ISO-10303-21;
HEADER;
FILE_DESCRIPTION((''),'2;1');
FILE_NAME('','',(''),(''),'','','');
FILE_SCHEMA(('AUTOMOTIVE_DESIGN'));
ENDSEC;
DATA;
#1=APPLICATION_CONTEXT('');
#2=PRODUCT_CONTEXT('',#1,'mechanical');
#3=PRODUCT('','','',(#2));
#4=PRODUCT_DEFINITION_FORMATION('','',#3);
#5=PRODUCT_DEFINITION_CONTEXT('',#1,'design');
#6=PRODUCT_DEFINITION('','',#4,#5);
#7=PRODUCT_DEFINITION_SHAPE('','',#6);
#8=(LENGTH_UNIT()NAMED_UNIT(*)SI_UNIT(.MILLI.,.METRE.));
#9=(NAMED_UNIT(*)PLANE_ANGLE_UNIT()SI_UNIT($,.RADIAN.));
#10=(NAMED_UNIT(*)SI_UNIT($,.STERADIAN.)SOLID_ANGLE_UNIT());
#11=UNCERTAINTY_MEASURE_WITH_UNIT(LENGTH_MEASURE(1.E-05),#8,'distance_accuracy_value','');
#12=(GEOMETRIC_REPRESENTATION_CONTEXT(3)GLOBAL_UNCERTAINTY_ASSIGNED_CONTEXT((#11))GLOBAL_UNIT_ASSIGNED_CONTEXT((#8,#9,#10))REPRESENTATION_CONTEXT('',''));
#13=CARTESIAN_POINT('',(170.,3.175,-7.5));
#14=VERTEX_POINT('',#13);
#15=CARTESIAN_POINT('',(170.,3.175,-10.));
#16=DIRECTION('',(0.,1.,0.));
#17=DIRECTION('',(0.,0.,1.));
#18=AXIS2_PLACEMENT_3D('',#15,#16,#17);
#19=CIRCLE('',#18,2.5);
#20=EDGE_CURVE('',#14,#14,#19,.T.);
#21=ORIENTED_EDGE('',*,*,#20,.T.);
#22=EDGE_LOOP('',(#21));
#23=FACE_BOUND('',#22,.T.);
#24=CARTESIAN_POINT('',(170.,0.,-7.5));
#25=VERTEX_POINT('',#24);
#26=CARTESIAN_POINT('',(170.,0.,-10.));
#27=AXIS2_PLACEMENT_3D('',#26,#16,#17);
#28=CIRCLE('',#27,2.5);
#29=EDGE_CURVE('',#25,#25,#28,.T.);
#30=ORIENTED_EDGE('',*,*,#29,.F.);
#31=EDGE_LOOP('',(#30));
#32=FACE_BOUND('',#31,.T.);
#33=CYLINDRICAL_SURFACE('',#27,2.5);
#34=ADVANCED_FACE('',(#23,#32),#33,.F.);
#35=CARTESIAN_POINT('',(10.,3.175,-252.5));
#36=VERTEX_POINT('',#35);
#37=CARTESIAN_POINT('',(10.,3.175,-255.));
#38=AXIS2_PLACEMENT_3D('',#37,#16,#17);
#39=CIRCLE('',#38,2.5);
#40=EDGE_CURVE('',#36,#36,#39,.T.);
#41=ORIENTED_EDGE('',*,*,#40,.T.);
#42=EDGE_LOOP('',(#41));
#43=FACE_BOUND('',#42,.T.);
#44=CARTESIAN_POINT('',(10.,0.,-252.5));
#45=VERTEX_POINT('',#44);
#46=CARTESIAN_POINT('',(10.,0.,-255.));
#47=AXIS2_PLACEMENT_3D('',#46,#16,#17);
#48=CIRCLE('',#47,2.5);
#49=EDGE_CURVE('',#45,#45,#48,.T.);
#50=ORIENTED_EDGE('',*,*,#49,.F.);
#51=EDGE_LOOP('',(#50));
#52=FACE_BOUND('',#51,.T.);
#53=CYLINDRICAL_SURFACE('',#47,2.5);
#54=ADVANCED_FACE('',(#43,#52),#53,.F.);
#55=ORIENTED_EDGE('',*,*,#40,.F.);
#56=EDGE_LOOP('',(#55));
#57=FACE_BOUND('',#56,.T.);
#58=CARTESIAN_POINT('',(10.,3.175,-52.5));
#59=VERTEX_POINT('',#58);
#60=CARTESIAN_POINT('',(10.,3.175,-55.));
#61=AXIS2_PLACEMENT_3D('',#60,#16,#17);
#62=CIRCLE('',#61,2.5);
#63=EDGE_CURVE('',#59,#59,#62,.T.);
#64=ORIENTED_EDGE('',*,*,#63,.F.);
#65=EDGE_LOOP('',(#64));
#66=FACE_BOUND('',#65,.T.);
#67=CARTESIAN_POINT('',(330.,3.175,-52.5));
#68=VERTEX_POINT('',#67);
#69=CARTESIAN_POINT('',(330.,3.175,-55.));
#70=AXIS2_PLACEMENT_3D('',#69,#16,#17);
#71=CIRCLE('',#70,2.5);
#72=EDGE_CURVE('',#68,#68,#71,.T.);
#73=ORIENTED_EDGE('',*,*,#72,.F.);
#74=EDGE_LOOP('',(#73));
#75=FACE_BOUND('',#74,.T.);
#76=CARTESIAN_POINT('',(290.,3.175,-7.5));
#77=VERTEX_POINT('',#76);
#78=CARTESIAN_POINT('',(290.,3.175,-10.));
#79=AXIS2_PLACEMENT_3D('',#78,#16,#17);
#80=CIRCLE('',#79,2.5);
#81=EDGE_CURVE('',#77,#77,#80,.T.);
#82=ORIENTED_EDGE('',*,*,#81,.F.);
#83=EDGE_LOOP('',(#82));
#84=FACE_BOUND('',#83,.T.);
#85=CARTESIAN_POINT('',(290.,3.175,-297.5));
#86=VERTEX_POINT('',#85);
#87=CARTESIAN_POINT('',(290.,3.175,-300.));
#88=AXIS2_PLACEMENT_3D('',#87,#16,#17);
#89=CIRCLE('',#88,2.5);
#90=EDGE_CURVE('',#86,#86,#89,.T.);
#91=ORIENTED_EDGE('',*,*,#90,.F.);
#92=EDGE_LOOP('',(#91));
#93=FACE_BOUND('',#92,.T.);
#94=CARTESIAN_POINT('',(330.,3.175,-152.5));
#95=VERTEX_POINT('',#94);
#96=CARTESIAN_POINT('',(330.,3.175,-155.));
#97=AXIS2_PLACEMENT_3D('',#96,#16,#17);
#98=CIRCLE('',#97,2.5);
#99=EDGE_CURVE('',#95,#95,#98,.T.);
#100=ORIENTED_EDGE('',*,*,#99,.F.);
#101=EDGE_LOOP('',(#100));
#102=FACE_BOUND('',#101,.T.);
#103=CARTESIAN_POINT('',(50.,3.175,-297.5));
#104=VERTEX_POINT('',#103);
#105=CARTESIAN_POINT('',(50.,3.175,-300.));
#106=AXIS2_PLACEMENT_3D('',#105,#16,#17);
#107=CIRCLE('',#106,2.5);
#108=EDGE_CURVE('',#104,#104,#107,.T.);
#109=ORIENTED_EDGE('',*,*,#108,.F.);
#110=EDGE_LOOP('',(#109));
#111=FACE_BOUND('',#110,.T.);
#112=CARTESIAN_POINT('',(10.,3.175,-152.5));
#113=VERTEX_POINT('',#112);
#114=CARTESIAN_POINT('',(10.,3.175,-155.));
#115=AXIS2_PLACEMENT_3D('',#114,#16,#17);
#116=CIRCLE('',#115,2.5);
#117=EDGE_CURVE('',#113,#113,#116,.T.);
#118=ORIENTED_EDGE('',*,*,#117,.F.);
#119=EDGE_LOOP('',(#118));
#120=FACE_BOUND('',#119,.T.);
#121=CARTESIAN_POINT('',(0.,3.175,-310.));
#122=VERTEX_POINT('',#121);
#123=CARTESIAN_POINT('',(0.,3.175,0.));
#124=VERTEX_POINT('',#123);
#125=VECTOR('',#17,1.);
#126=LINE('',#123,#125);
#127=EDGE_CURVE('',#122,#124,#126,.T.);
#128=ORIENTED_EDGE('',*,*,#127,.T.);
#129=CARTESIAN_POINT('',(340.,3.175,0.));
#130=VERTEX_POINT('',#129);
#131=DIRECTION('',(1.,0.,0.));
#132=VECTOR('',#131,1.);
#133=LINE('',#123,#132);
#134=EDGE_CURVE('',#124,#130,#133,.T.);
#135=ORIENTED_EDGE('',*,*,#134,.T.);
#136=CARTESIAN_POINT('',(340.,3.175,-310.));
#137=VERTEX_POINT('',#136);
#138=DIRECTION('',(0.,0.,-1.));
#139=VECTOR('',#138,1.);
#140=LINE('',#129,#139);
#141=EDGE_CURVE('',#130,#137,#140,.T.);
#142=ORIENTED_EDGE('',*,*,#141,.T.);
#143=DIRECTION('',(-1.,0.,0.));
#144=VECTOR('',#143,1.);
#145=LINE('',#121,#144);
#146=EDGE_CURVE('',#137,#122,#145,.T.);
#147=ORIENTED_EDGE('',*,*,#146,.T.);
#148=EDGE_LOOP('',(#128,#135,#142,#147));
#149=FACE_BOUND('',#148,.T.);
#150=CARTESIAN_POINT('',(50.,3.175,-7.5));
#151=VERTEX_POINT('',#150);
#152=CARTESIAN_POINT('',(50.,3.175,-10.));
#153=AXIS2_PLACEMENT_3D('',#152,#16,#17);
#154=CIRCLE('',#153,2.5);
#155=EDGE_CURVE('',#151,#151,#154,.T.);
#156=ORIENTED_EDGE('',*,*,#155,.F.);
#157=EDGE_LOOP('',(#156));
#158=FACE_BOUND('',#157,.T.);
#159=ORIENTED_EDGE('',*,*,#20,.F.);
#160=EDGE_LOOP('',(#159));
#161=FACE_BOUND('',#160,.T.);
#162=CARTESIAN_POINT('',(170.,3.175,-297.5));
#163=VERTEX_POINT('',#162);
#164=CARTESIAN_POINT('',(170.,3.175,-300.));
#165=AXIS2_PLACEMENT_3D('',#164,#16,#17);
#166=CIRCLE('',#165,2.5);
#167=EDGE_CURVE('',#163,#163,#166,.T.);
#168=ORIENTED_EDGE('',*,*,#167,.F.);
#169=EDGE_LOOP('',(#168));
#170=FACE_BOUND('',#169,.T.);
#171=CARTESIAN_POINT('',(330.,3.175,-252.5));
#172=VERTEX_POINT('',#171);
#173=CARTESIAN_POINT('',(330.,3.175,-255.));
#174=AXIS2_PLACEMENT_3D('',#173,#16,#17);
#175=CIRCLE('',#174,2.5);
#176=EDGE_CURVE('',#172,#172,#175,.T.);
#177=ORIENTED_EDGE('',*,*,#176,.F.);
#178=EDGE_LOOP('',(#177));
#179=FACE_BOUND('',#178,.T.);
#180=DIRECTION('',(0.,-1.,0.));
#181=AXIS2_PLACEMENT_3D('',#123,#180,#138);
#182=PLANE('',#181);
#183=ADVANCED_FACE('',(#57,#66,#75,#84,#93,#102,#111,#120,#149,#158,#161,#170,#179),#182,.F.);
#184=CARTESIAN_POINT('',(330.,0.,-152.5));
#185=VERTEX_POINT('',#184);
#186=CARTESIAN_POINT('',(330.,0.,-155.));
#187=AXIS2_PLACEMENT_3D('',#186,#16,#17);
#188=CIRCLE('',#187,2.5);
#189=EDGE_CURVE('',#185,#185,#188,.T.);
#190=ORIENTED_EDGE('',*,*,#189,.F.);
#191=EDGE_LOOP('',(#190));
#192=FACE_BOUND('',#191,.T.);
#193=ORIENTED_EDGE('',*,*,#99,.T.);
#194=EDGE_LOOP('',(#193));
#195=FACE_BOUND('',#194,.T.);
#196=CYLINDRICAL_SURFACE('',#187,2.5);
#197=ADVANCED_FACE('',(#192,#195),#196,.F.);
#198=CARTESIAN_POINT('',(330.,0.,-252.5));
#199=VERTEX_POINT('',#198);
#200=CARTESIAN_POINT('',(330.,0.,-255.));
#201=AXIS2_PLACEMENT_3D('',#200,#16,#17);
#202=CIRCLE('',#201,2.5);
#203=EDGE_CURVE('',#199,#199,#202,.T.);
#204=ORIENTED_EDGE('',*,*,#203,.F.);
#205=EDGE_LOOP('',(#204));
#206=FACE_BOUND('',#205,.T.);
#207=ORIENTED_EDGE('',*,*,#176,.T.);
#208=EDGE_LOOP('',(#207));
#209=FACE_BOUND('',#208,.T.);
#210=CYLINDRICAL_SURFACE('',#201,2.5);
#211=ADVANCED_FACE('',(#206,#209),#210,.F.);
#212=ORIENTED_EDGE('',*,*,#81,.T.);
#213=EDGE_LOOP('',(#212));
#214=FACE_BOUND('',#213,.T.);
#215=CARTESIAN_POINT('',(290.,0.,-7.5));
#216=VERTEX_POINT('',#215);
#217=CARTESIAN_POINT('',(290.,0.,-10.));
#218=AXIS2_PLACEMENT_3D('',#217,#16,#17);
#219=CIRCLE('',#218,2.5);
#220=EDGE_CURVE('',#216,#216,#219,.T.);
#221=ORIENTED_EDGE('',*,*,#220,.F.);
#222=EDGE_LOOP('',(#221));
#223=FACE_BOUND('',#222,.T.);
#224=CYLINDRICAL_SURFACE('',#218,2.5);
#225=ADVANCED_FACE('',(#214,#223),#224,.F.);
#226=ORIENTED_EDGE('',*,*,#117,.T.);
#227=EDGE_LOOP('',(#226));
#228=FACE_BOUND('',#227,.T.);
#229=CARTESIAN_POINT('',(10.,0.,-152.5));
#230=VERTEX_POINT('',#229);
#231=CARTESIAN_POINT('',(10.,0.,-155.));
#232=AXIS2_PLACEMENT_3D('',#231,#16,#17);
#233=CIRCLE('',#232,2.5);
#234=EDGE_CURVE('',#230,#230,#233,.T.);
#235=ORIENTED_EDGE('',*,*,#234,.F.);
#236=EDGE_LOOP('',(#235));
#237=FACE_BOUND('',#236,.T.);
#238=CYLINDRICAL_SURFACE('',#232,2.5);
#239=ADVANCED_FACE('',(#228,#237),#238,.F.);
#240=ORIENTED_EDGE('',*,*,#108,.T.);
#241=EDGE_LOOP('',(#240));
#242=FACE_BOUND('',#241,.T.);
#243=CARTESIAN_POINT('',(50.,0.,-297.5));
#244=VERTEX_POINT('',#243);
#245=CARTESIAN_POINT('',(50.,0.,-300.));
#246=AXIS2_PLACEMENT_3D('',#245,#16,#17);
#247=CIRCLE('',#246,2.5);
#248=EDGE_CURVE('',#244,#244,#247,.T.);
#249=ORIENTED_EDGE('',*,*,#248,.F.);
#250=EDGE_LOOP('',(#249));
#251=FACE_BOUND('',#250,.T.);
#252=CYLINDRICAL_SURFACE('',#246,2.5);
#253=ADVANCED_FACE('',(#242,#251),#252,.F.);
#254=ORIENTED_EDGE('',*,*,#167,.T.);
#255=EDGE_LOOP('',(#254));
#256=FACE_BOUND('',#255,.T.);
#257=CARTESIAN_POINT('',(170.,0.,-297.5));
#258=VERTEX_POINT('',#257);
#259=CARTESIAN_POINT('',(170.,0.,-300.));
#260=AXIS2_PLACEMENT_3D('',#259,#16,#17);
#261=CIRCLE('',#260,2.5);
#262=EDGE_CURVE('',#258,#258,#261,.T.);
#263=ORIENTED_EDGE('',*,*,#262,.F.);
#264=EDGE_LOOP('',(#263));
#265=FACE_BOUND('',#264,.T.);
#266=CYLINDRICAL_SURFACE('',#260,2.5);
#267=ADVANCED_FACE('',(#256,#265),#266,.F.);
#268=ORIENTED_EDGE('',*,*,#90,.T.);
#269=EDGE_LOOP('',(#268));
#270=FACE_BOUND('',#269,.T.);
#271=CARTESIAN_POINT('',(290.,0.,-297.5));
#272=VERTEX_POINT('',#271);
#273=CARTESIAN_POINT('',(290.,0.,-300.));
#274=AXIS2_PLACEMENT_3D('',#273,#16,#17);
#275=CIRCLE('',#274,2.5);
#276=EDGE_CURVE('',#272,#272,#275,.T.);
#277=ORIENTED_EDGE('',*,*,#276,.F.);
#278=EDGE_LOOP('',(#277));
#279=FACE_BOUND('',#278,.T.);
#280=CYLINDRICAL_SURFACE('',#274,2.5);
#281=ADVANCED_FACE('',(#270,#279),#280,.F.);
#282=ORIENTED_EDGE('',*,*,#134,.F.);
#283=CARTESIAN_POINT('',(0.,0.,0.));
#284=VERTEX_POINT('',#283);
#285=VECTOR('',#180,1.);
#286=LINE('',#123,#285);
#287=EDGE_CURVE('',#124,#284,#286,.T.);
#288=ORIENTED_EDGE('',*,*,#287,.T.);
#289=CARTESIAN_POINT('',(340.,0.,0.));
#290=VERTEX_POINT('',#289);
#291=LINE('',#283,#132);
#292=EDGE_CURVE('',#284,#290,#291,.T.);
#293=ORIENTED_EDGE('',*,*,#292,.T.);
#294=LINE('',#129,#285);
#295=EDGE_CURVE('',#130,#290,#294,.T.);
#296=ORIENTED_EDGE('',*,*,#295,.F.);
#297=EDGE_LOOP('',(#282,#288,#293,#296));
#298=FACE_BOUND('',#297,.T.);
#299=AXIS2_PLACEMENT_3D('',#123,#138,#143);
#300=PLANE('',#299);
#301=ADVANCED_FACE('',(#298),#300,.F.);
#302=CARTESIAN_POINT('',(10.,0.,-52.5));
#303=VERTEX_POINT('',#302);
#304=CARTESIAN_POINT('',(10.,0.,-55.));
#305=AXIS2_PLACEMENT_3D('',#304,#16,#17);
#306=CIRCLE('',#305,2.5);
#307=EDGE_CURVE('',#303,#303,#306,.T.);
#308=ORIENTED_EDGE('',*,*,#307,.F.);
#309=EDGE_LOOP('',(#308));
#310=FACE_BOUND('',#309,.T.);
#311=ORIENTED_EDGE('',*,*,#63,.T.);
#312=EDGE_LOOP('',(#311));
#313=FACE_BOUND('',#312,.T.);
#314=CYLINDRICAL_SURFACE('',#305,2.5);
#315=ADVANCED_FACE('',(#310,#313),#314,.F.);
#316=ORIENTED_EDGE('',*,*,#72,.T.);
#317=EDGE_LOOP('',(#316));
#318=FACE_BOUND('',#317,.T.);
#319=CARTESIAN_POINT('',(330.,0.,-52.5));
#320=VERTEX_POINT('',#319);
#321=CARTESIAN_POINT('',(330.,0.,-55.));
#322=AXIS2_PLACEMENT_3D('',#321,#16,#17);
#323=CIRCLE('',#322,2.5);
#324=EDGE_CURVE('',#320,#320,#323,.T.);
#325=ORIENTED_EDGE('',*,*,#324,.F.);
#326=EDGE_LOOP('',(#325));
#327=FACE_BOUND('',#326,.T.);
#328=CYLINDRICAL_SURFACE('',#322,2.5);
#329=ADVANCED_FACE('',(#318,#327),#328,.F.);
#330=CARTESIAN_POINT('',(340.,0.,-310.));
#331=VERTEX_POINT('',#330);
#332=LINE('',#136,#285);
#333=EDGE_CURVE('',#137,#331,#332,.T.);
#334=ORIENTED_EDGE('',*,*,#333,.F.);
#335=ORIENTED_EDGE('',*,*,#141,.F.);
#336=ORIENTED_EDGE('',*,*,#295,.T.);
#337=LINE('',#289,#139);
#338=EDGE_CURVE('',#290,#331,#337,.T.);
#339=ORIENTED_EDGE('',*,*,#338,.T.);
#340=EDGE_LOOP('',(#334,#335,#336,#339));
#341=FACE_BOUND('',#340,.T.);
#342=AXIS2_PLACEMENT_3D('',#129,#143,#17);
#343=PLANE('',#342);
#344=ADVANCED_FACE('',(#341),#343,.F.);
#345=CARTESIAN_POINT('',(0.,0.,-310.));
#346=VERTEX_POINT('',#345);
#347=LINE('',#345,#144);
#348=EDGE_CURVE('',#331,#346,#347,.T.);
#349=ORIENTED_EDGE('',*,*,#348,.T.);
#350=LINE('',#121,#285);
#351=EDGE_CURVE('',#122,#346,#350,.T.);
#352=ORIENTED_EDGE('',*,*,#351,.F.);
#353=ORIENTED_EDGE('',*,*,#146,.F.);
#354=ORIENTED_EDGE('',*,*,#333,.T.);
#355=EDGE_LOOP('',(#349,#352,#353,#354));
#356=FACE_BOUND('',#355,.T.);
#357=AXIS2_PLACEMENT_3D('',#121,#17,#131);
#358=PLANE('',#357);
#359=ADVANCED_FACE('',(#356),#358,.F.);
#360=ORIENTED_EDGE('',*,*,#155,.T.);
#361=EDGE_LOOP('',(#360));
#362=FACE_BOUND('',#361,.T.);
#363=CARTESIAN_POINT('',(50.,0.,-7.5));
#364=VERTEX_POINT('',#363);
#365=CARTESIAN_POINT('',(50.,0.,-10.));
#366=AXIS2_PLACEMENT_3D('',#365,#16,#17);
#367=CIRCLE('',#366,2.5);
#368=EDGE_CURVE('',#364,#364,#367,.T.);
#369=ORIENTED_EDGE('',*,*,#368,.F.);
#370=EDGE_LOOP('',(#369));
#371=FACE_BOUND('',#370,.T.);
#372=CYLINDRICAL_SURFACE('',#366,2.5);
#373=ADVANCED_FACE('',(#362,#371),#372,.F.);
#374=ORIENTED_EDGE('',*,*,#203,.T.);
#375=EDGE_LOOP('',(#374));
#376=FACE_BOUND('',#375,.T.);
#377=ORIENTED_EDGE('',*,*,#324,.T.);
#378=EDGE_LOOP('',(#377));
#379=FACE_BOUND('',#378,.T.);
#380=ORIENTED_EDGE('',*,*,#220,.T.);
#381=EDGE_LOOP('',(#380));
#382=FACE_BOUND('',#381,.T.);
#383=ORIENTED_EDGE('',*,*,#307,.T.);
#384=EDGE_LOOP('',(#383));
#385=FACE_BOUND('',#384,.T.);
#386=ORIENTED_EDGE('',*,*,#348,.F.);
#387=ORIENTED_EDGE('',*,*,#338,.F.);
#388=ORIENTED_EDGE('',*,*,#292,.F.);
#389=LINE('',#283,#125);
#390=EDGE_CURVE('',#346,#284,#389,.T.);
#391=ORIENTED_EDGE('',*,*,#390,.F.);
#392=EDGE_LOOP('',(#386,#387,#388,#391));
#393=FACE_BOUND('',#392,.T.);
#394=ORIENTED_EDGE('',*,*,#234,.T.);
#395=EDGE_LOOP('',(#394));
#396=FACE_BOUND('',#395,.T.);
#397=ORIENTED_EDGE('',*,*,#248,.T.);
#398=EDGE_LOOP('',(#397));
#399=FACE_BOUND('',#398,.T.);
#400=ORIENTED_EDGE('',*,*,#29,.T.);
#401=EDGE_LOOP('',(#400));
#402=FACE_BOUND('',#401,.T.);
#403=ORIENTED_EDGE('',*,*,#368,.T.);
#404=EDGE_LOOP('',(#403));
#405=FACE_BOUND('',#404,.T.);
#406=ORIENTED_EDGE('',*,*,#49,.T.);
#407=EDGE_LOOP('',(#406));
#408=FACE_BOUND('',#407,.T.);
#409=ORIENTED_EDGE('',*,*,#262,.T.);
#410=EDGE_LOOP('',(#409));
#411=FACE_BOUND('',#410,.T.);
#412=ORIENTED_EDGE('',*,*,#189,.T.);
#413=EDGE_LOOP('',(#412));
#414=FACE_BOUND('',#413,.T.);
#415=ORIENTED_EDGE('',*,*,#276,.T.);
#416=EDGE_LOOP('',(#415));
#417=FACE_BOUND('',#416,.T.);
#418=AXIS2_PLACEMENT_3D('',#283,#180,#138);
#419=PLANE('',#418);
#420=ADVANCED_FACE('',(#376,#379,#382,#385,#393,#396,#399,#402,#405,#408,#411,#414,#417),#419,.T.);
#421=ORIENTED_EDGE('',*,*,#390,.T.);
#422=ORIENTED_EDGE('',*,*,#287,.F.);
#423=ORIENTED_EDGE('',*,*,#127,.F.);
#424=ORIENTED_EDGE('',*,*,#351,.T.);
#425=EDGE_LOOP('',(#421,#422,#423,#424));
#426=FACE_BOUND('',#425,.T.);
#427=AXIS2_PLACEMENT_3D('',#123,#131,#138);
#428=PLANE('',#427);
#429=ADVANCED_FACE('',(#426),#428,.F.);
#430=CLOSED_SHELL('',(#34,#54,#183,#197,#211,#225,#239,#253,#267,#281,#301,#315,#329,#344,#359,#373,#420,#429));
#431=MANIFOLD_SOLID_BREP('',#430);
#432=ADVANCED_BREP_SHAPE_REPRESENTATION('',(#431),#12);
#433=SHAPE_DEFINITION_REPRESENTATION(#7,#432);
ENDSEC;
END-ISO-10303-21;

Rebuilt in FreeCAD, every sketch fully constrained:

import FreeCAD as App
import Part
import Sketcher

V = App.Vector
Q = App.Units.Quantity

doc = App.newDocument("Part")
params = doc.addObject("Spreadsheet::Sheet", "Params")
for row, (alias, value) in enumerate([
    ("sketch1_width", "340 mm"),
    ("sketch1_height", "310 mm"),
    ("pad1_length", "3.175 mm"),
    ("sketch2_diameter", "5 mm"),
    ("pocket1_length", "3.175 mm"),
], start=1):
    params.set(f"A{row}", alias)
    params.set(f"B{row}", "=" + value)
    params.setAlias(f"B{row}", alias)

body = doc.addObject("PartDesign::Body", "Body")

# Sketch on XZ plane
sketch1 = body.newObject("Sketcher::SketchObject", "Sketch")
sketch1.AttachmentSupport = (doc.getObject("XZ_Plane"), [""])
sketch1.MapMode = "FlatFace"
sketch1.addGeometry(Part.LineSegment(V(0, -310, 0), V(0, 0, 0)), False)
sketch1.addGeometry(Part.LineSegment(V(0, 0, 0), V(340, 0, 0)), False)
sketch1.addGeometry(Part.LineSegment(V(340, 0, 0), V(340, -310, 0)), False)
sketch1.addGeometry(Part.LineSegment(V(340, -310, 0), V(0, -310, 0)), False)
sketch1.addConstraint(Sketcher.Constraint("Coincident", 0, 2, 1, 1))
sketch1.addConstraint(Sketcher.Constraint("Coincident", 1, 2, 2, 1))
sketch1.addConstraint(Sketcher.Constraint("Coincident", 2, 2, 3, 1))
sketch1.addConstraint(Sketcher.Constraint("Coincident", 3, 2, 0, 1))
sketch1.addConstraint(Sketcher.Constraint("Vertical", 0))
sketch1.addConstraint(Sketcher.Constraint("Horizontal", 1))
sketch1.addConstraint(Sketcher.Constraint("Vertical", 2))
sketch1.addConstraint(Sketcher.Constraint("Horizontal", 3))
sketch1.addConstraint(Sketcher.Constraint("Coincident", 0, 2, -1, 1))
sketch1.addConstraint(Sketcher.Constraint("DistanceX", 1, 1, 1, 2, Q("340 mm")))
sketch1.addConstraint(Sketcher.Constraint("DistanceY", 0, 1, 0, 2, Q("310 mm")))
sketch1.setExpression("Constraints[9]", "Params.sketch1_width")
sketch1.setExpression("Constraints[10]", "Params.sketch1_height")
pad1 = body.newObject("PartDesign::Pad", "Pad")
pad1.Profile = sketch1
pad1.setExpression("Length", "Params.pad1_length")
pad1.Reversed = True

# Sketch on XZ plane
sketch2 = body.newObject("Sketcher::SketchObject", "Sketch001")
sketch2.AttachmentSupport = (doc.getObject("XZ_Plane"), [""])
sketch2.MapMode = "FlatFace"
sketch2.AttachmentOffset = App.Placement(V(0, 0, -3.175), App.Rotation())
sketch2.addGeometry(Part.Circle(V(10, -155, 0), V(0, 0, 1), 2.5), False)
sketch2.addGeometry(Part.Circle(V(10, -255, 0), V(0, 0, 1), 2.5), False)
sketch2.addGeometry(Part.Circle(V(10, -55, 0), V(0, 0, 1), 2.5), False)
sketch2.addGeometry(Part.Circle(V(50, -10, 0), V(0, 0, 1), 2.5), False)
sketch2.addGeometry(Part.Circle(V(170, -10, 0), V(0, 0, 1), 2.5), False)
sketch2.addGeometry(Part.Circle(V(290, -10, 0), V(0, 0, 1), 2.5), False)
sketch2.addGeometry(Part.Circle(V(330, -55, 0), V(0, 0, 1), 2.5), False)
sketch2.addGeometry(Part.Circle(V(330, -155, 0), V(0, 0, 1), 2.5), False)
sketch2.addGeometry(Part.Circle(V(330, -255, 0), V(0, 0, 1), 2.5), False)
sketch2.addGeometry(Part.Circle(V(290, -300, 0), V(0, 0, 1), 2.5), False)
sketch2.addGeometry(Part.Circle(V(170, -300, 0), V(0, 0, 1), 2.5), False)
sketch2.addGeometry(Part.Circle(V(50, -300, 0), V(0, 0, 1), 2.5), False)
sketch2.addConstraint(Sketcher.Constraint("Equal", 0, 1))
sketch2.addConstraint(Sketcher.Constraint("Equal", 1, 2))
sketch2.addConstraint(Sketcher.Constraint("Equal", 2, 3))
sketch2.addConstraint(Sketcher.Constraint("Equal", 3, 4))
sketch2.addConstraint(Sketcher.Constraint("Equal", 4, 5))
sketch2.addConstraint(Sketcher.Constraint("Equal", 5, 6))
sketch2.addConstraint(Sketcher.Constraint("Equal", 6, 7))
sketch2.addConstraint(Sketcher.Constraint("Equal", 7, 8))
sketch2.addConstraint(Sketcher.Constraint("Equal", 8, 9))
sketch2.addConstraint(Sketcher.Constraint("Equal", 9, 10))
sketch2.addConstraint(Sketcher.Constraint("Equal", 10, 11))
sketch2.addConstraint(Sketcher.Constraint("Horizontal", 3, 3, 4, 3))
sketch2.addConstraint(Sketcher.Constraint("Horizontal", 4, 3, 5, 3))
sketch2.addConstraint(Sketcher.Constraint("Horizontal", 2, 3, 6, 3))
sketch2.addConstraint(Sketcher.Constraint("Horizontal", 0, 3, 7, 3))
sketch2.addConstraint(Sketcher.Constraint("Horizontal", 1, 3, 8, 3))
sketch2.addConstraint(Sketcher.Constraint("Horizontal", 9, 3, 10, 3))
sketch2.addConstraint(Sketcher.Constraint("Horizontal", 10, 3, 11, 3))
sketch2.addConstraint(Sketcher.Constraint("Vertical", 0, 3, 1, 3))
sketch2.addConstraint(Sketcher.Constraint("Vertical", 1, 3, 2, 3))
sketch2.addConstraint(Sketcher.Constraint("Vertical", 6, 3, 7, 3))
sketch2.addConstraint(Sketcher.Constraint("Vertical", 7, 3, 8, 3))
sketch2.addConstraint(Sketcher.Constraint("Vertical", 5, 3, 9, 3))
sketch2.addConstraint(Sketcher.Constraint("Vertical", 4, 3, 10, 3))
sketch2.addConstraint(Sketcher.Constraint("Vertical", 3, 3, 11, 3))
sketch2.addConstraint(Sketcher.Constraint("Diameter", 0, Q("5 mm")))
sketch2.addConstraint(Sketcher.Constraint("DistanceX", -1, 1, 0, 3, Q("10 mm")))
sketch2.addConstraint(Sketcher.Constraint("DistanceY", 0, 3, -1, 1, Q("155 mm")))
sketch2.addConstraint(Sketcher.Constraint("DistanceY", 1, 3, -1, 1, Q("255 mm")))
sketch2.addConstraint(Sketcher.Constraint("DistanceY", 2, 3, -1, 1, Q("55 mm")))
sketch2.addConstraint(Sketcher.Constraint("DistanceX", -1, 1, 3, 3, Q("50 mm")))
sketch2.addConstraint(Sketcher.Constraint("DistanceY", 3, 3, -1, 1, Q("10 mm")))
sketch2.addConstraint(Sketcher.Constraint("DistanceX", -1, 1, 4, 3, Q("170 mm")))
sketch2.addConstraint(Sketcher.Constraint("DistanceX", -1, 1, 5, 3, Q("290 mm")))
sketch2.addConstraint(Sketcher.Constraint("DistanceX", -1, 1, 6, 3, Q("330 mm")))
sketch2.addConstraint(Sketcher.Constraint("DistanceY", 9, 3, -1, 1, Q("300 mm")))
sketch2.setExpression("Constraints[25]", "Params.sketch2_diameter")
pocket1 = body.newObject("PartDesign::Pocket", "Pocket")
pocket1.Profile = sketch2
pocket1.setExpression("Length", "Params.pocket1_length")
pocket1.Reversed = True

doc.recompute()
